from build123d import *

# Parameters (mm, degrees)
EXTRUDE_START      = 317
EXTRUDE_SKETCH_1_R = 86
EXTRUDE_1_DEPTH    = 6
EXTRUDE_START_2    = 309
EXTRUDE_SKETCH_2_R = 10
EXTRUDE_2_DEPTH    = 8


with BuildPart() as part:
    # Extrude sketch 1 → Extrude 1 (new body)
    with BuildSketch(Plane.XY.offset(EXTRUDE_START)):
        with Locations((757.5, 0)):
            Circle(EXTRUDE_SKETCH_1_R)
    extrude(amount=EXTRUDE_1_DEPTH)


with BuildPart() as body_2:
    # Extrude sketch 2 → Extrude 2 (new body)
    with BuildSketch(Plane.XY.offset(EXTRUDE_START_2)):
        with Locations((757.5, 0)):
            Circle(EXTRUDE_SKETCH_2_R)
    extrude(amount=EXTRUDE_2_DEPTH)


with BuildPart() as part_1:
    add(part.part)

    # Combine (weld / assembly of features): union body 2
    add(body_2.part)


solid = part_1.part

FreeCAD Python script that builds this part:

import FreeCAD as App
import Part
import Sketcher

V = App.Vector
Q = App.Units.Quantity

doc = App.newDocument("Part")
params = doc.addObject("Spreadsheet::Sheet", "Params")
for row, (alias, value) in enumerate([
    ("sketch1_diameter", "172 mm"),
    ("pad1_length", "6 mm"),
    ("sketch2_diameter", "20 mm"),
    ("pad2_length", "8 mm"),
], start=1):
    params.set(f"A{row}", alias)
    params.set(f"B{row}", "=" + value)
    params.setAlias(f"B{row}", alias)

body = doc.addObject("PartDesign::Body", "Body")

sketch1 = body.newObject("Sketcher::SketchObject", "Sketch")
sketch1.AttachmentSupport = (doc.getObject("XY_Plane"), [""])
sketch1.MapMode = "FlatFace"
sketch1.AttachmentOffset = App.Placement(V(0, 0, 317), App.Rotation())
sketch1.addGeometry(Part.Circle(V(757.5, 0, 0), V(0, 0, 1), 86), False)
sketch1.addConstraint([
    Sketcher.Constraint("PointOnObject", 0, 3, -1),
    Sketcher.Constraint("Diameter", 0, Q("172 mm")),
    Sketcher.Constraint("DistanceX", -1, 1, 0, 3, Q("757.5 mm")),
])
sketch1.setExpression("Constraints[1]", "Params.sketch1_diameter")
pad1 = body.newObject("PartDesign::Pad", "Pad")
pad1.Profile = sketch1
pad1.setExpression("Length", "Params.pad1_length")
body2 = doc.addObject("PartDesign::Body", "Body001")

sketch2 = body2.newObject("Sketcher::SketchObject", "Sketch001")
sketch2.AttachmentSupport = (doc.getObject("XY_Plane001"), [""])
sketch2.MapMode = "FlatFace"
sketch2.AttachmentOffset = App.Placement(V(0, 0, 309), App.Rotation())
sketch2.addGeometry(Part.Circle(V(757.5, 0, 0), V(0, 0, 1), 10), False)
sketch2.addConstraint([
    Sketcher.Constraint("PointOnObject", 0, 3, -1),
    Sketcher.Constraint("Diameter", 0, Q("20 mm")),
    Sketcher.Constraint("DistanceX", -1, 1, 0, 3, Q("757.5 mm")),
])
sketch2.setExpression("Constraints[1]", "Params.sketch2_diameter")
pad2 = body2.newObject("PartDesign::Pad", "Pad001")
pad2.Profile = sketch2
pad2.setExpression("Length", "Params.pad2_length")
doc.recompute()

boolean = body.newObject("PartDesign::Boolean", "Boolean")
boolean.Type = "Fuse"
boolean.addObjects([body2])

doc.recompute()
